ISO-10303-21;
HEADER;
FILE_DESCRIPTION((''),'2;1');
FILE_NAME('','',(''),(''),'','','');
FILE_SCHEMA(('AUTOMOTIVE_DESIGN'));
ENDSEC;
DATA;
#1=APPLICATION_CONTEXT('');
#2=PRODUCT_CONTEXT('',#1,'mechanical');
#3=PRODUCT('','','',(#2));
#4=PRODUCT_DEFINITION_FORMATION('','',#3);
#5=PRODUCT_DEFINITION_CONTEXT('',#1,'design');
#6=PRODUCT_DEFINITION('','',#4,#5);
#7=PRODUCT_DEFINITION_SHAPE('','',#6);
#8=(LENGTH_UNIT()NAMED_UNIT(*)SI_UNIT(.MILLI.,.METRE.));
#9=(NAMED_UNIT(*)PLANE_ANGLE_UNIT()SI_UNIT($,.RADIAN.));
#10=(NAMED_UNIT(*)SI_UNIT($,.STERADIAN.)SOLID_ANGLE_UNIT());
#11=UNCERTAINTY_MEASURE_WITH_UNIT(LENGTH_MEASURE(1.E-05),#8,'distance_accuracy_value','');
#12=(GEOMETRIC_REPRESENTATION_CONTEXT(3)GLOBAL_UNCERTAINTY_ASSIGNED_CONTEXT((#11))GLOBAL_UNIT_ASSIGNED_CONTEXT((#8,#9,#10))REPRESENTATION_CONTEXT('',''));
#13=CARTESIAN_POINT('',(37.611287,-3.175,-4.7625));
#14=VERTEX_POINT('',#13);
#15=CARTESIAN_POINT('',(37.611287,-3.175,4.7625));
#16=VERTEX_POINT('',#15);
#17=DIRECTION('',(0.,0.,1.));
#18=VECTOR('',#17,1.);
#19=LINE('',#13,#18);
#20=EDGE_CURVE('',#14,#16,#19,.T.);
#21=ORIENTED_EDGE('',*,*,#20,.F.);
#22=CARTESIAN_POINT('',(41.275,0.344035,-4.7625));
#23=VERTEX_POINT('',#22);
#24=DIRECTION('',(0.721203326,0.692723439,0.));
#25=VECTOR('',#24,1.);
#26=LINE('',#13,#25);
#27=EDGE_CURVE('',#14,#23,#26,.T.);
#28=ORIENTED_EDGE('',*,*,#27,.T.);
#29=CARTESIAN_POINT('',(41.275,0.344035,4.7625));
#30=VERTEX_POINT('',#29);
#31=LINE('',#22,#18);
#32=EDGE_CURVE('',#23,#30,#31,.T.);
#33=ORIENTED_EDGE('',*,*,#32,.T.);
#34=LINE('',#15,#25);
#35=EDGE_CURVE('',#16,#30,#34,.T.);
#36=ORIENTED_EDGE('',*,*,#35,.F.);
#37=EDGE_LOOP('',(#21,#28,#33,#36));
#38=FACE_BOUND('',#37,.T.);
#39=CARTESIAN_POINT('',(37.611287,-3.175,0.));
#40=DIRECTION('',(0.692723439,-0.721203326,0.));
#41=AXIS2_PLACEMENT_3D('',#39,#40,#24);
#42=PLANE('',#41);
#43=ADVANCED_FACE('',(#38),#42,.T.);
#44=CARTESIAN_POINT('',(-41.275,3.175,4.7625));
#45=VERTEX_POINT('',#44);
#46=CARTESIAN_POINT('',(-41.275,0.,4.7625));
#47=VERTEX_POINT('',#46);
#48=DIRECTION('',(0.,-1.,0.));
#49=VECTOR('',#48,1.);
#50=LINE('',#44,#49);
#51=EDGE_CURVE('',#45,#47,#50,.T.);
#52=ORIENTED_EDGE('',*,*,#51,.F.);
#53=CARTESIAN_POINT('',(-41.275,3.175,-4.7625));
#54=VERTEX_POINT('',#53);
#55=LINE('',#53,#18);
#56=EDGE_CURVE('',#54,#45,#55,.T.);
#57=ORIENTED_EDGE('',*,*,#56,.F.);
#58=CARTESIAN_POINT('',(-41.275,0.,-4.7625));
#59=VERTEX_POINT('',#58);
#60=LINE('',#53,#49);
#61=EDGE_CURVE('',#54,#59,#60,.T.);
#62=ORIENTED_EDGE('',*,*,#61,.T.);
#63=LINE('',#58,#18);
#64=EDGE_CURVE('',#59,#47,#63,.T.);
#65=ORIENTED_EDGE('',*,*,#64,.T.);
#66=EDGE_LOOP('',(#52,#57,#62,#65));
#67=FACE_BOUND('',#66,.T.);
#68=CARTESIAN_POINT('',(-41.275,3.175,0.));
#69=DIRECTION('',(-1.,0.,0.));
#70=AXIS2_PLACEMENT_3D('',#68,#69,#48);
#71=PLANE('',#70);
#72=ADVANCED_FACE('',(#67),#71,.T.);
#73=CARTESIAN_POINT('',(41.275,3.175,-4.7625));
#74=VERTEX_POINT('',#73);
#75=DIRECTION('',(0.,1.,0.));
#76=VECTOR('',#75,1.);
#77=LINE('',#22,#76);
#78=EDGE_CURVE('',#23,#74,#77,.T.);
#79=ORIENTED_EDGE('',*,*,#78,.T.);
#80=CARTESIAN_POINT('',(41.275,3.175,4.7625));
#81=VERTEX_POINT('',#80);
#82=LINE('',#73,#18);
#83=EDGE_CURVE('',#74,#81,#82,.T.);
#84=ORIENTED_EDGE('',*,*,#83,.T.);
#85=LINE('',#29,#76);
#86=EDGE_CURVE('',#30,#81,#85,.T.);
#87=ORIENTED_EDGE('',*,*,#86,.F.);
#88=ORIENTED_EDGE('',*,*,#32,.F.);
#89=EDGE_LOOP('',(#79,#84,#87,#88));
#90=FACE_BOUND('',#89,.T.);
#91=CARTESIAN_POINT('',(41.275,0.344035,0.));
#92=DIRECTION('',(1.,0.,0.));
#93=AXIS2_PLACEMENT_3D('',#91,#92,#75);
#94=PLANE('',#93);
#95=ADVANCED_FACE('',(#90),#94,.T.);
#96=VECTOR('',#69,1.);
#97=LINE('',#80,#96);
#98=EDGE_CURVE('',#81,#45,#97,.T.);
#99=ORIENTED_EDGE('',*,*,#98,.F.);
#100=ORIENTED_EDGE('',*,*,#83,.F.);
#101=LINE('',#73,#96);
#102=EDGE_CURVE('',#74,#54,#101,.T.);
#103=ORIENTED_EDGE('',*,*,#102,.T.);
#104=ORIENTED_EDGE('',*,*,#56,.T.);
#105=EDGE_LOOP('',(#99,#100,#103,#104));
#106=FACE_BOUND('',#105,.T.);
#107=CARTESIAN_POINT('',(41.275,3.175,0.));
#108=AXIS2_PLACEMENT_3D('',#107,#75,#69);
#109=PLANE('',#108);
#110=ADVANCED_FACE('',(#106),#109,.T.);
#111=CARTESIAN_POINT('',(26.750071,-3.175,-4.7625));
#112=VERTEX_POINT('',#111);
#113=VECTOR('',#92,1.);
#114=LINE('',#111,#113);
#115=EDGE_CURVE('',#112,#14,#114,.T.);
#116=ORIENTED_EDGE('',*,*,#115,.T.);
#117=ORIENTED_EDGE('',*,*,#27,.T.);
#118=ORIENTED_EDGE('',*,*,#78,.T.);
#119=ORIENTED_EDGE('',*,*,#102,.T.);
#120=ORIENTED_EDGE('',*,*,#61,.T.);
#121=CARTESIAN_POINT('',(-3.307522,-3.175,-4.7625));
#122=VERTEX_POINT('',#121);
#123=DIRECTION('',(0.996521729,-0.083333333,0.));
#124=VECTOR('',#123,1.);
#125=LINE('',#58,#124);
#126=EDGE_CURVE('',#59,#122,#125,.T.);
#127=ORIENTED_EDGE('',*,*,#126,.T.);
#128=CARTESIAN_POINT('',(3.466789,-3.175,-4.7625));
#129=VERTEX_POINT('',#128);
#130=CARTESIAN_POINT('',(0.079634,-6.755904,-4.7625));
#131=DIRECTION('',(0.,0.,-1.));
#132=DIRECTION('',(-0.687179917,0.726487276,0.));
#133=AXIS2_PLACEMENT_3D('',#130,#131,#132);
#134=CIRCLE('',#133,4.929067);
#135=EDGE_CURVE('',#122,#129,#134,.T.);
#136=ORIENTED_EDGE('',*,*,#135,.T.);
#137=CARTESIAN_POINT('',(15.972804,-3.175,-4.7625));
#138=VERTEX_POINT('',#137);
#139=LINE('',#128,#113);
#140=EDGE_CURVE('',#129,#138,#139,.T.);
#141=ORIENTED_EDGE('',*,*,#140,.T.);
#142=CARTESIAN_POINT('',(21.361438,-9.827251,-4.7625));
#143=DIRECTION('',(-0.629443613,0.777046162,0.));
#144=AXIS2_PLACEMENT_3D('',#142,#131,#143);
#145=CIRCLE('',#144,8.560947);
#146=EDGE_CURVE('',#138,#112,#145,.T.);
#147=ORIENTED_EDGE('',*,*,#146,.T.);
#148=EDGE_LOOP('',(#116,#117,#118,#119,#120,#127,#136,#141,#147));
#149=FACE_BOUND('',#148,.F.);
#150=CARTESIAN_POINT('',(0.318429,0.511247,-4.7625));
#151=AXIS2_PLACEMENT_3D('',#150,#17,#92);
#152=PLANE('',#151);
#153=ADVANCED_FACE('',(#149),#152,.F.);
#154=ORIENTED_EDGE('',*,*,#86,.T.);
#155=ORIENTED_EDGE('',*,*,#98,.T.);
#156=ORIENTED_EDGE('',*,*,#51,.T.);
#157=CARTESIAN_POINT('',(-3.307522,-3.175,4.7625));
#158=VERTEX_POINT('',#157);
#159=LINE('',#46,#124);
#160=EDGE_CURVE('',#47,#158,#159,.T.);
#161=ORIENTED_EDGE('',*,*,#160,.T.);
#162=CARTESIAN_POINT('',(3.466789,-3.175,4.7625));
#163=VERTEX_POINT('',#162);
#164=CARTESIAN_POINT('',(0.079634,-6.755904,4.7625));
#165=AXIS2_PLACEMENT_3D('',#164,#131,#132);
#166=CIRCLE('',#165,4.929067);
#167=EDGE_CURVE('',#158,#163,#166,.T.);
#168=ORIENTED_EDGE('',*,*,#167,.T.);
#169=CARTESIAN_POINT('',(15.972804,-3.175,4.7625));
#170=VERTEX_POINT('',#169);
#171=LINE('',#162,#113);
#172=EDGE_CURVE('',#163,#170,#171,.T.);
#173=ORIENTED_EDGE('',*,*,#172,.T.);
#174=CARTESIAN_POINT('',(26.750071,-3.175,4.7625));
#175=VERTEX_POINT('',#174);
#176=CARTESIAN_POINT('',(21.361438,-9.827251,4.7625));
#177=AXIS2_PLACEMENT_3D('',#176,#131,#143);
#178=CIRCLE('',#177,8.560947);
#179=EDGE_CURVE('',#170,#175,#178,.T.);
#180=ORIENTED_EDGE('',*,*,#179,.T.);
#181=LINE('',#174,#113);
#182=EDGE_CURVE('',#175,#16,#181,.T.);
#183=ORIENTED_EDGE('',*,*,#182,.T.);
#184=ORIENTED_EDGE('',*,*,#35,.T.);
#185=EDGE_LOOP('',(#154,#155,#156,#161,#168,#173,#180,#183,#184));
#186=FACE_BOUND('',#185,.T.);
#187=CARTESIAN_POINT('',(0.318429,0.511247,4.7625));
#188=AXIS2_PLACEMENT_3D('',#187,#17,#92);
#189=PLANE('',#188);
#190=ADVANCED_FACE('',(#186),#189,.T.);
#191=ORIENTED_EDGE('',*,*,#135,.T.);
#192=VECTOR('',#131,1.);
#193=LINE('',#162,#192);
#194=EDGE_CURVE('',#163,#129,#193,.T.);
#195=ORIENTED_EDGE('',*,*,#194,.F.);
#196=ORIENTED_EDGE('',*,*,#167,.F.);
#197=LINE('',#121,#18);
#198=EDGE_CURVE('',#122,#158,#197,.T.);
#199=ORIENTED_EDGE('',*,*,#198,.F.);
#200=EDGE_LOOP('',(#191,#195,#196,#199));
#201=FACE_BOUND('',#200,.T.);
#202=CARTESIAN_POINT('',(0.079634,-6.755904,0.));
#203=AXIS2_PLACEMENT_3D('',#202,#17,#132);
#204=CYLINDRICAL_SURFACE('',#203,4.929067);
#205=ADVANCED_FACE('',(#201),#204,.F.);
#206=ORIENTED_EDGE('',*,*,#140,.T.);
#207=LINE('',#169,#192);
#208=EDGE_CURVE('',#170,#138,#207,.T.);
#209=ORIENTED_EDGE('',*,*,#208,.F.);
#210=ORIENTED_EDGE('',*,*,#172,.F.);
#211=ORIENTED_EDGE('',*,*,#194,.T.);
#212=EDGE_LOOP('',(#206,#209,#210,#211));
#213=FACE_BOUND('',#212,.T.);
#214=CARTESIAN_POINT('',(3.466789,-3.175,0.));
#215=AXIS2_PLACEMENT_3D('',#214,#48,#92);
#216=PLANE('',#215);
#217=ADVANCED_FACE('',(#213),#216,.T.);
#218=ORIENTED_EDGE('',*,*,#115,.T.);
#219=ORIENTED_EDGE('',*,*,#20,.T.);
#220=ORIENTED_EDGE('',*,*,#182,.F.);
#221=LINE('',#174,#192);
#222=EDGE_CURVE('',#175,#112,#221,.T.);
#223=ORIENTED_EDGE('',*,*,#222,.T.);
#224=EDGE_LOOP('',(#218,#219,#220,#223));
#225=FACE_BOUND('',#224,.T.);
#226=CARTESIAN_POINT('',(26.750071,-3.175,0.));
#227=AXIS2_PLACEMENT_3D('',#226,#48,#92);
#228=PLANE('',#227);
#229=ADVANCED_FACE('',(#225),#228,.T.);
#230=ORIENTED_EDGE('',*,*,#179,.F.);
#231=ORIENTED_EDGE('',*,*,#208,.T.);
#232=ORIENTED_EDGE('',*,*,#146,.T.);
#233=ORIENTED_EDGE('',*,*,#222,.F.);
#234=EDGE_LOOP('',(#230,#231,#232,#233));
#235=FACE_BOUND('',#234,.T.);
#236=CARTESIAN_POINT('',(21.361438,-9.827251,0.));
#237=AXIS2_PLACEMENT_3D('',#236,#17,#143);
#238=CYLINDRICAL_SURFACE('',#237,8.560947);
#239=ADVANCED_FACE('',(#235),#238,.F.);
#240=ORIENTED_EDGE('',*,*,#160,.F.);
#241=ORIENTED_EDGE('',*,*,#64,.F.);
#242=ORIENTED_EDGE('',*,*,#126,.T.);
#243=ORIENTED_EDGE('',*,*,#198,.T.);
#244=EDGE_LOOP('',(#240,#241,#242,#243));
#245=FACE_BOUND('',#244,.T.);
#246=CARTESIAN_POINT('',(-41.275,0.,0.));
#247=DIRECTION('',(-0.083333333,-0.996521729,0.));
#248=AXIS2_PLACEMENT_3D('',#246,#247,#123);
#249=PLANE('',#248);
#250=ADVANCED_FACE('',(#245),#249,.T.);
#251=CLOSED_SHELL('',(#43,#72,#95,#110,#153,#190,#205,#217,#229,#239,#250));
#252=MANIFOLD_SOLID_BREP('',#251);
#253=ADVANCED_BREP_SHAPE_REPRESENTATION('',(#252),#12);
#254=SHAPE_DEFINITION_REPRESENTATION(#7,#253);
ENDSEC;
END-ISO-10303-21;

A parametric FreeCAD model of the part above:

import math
import FreeCAD as App
import Part
import Sketcher

V = App.Vector
Q = App.Units.Quantity

doc = App.newDocument("Part")
params = doc.addObject("Spreadsheet::Sheet", "Params")
for row, (alias, value) in enumerate([
    ("sketch1_length", "0.2 in"),
    ("sketch1_length2", "1.5 in"),
    ("sketch1_width", "3.25 in"),
    ("sketch1_height", "0.125 in"),
    ("pad1_length", "0.375 in"),
], start=1):
    params.set(f"A{row}", alias)
    params.set(f"B{row}", "=" + value)
    params.setAlias(f"B{row}", alias)

body = doc.addObject("PartDesign::Body", "Body")

# Sketch on XY plane
sketch1 = doc.addObject("Sketcher::SketchObject", "Sketch")
body.addObject(sketch1)
sketch1.AttachmentSupport = (doc.XY_Plane, [""])
sketch1.MapMode = "FlatFace"
sketch1.addGeometry(Part.LineSegment(V(26.8, -3.2, 0), V(37.6, -3.2, 0)), False)
sketch1.addGeometry(Part.LineSegment(V(37.6, -3.2, 0), V(41.3, 0.3, 0)), False)
sketch1.addGeometry(Part.LineSegment(V(41.3, 0.3, 0), V(41.3, 3.2, 0)), False)
sketch1.addGeometry(Part.LineSegment(V(41.3, 3.2, 0), V(-41.3, 3.2, 0)), False)
sketch1.addGeometry(Part.LineSegment(V(-41.3, 3.2, 0), V(-41.3, 0, 0)), False)
sketch1.addGeometry(Part.LineSegment(V(-41.3, 0, 0), V(-3.3, -3.2, 0)), False)
sketch1.addGeometry(Part.ArcOfCircle(Part.Circle(V(0.1, -6.8, 0), V(0, 0, 1), 4.9), math.radians(47), math.radians(133)), False)
sketch1.addGeometry(Part.LineSegment(V(3.5, -3.2, 0), V(16, -3.2, 0)), False)
sketch1.addGeometry(Part.ArcOfCircle(Part.Circle(V(21.4, -9.8, 0), V(0, 0, 1), 8.6), math.radians(51), math.radians(129)), False)
sketch1.addConstraint(Sketcher.Constraint("Coincident", 0, 2, 1, 1))
sketch1.addConstraint(Sketcher.Constraint("Coincident", 1, 2, 2, 1))
sketch1.addConstraint(Sketcher.Constraint("Coincident", 2, 2, 3, 1))
sketch1.addConstraint(Sketcher.Constraint("Coincident", 3, 2, 4, 1))
sketch1.addConstraint(Sketcher.Constraint("Coincident", 4, 2, 5, 1))
sketch1.addConstraint(Sketcher.Constraint("Coincident", 5, 2, 6, 2))
sketch1.addConstraint(Sketcher.Constraint("Coincident", 6, 1, 7, 1))
sketch1.addConstraint(Sketcher.Constraint("Coincident", 7, 2, 8, 2))
sketch1.addConstraint(Sketcher.Constraint("Coincident", 8, 1, 0, 1))
sketch1.addConstraint(Sketcher.Constraint("Horizontal", 0))
sketch1.addConstraint(Sketcher.Constraint("Vertical", 2))
sketch1.addConstraint(Sketcher.Constraint("Horizontal", 3))
sketch1.addConstraint(Sketcher.Constraint("Vertical", 4))
sketch1.addConstraint(Sketcher.Constraint("Horizontal", 7))
sketch1.addConstraint(Sketcher.Constraint("PointOnObject", 4, 2, -1))
sketch1.addConstraint(Sketcher.Constraint("Horizontal", 0, 2, 5, 2))
sketch1.addConstraint(Sketcher.Constraint("Horizontal", 5, 2, 6, 1))
sketch1.addConstraint(Sketcher.Constraint("Distance", 1, Q("0.2 in")))
sketch1.addConstraint(Sketcher.Constraint("Distance", 5, Q("1.5 in")))
sketch1.addConstraint(Sketcher.Constraint("DistanceX", 3, 2, 3, 1, Q("3.25 in")))
sketch1.addConstraint(Sketcher.Constraint("DistanceY", 4, 2, 4, 1, Q("0.125 in")))
sketch1.addConstraint(Sketcher.Constraint("DistanceY", 0, 2, 2, 2, Q("0.25 in")))
sketch1.addConstraint(Sketcher.Constraint("DistanceX", -1, 1, 1, 2, Q("1.625 in")))
sketch1.addConstraint(Sketcher.Constraint("Radius", 6, Q("4.929067 mm")))
sketch1.addConstraint(Sketcher.Constraint("Radius", 8, Q("8.560947 mm")))
sketch1.addConstraint(Sketcher.Constraint("DistanceX", 0, 1, 0, 2, Q("10.861216 mm")))
sketch1.addConstraint(Sketcher.Constraint("DistanceX", 7, 1, 7, 2, Q("12.506015 mm")))
sketch1.addConstraint(Sketcher.Constraint("DistanceY", 2, 1, 2, 2, Q("2.830965 mm")))
sketch1.addConstraint(Sketcher.Constraint("DistanceY", 8, 3, -1, 1, Q("9.827251 mm")))
sketch1.setExpression("Constraints[17]", "Params.sketch1_length")
sketch1.setExpression("Constraints[18]", "Params.sketch1_length2")
sketch1.setExpression("Constraints[19]", "Params.sketch1_width")
sketch1.setExpression("Constraints[20]", "Params.sketch1_height")
pad1 = doc.addObject("PartDesign::Pad", "Pad")
body.addObject(pad1)
pad1.Profile = sketch1
pad1.setExpression("Length", "Params.pad1_length")
pad1.Midplane = True

doc.recompute()
